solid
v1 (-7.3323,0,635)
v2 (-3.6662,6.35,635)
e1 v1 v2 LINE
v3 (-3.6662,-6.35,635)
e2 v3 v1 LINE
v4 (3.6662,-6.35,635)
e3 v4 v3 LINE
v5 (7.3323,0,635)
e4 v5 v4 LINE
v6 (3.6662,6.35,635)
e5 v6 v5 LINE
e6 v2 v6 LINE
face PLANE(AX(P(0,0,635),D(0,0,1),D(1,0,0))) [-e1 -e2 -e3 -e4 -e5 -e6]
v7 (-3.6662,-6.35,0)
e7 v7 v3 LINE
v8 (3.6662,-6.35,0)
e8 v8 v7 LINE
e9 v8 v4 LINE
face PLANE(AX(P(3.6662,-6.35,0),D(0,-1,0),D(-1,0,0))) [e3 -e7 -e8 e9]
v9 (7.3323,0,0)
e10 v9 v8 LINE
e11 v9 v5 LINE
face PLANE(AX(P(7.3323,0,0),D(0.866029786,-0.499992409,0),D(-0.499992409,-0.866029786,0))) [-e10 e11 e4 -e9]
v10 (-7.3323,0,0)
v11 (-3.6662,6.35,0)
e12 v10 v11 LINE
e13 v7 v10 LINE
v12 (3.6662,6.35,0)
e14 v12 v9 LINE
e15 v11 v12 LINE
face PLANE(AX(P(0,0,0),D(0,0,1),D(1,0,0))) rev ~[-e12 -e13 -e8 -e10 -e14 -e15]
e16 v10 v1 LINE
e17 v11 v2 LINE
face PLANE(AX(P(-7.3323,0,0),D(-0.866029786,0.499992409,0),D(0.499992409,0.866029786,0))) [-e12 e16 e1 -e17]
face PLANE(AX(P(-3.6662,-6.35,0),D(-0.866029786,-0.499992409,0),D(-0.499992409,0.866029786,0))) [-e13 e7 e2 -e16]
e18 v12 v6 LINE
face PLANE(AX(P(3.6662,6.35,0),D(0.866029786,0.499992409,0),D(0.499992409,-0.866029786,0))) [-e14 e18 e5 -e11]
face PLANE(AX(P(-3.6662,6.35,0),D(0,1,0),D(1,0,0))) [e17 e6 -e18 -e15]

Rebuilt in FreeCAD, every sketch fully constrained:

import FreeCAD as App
import Part
import Sketcher
from FreeCAD import Vector
Q = App.Units.Quantity

doc = App.newDocument("Part")
body = doc.addObject("PartDesign::Body", "Body")

# Sketch on XY plane
sketch1 = body.newObject("Sketcher::SketchObject", "Sketch")
sketch1.AttachmentSupport = (doc.getObject("XY_Plane"), [""])
sketch1.MapMode = "FlatFace"
sketch1.addGeometry(Part.LineSegment(Vector(7, 0, 0), Vector(4, 6, 0)), False)
sketch1.addGeometry(Part.LineSegment(Vector(4, 6, 0), Vector(-4, 6, 0)), False)
sketch1.addGeometry(Part.LineSegment(Vector(-4, 6, 0), Vector(-7, 0, 0)), False)
sketch1.addGeometry(Part.LineSegment(Vector(-7, 0, 0), Vector(-4, -6, 0)), False)
sketch1.addGeometry(Part.LineSegment(Vector(-4, -6, 0), Vector(4, -6, 0)), False)
sketch1.addGeometry(Part.LineSegment(Vector(4, -6, 0), Vector(7, 0, 0)), False)
sketch1.addConstraint(Sketcher.Constraint("Coincident", 0, 2, 1, 1))
sketch1.addConstraint(Sketcher.Constraint("Coincident", 1, 2, 2, 1))
sketch1.addConstraint(Sketcher.Constraint("Coincident", 2, 2, 3, 1))
sketch1.addConstraint(Sketcher.Constraint("Coincident", 3, 2, 4, 1))
sketch1.addConstraint(Sketcher.Constraint("Coincident", 4, 2, 5, 1))
sketch1.addConstraint(Sketcher.Constraint("Coincident", 5, 2, 0, 1))
sketch1.addConstraint(Sketcher.Constraint("Horizontal", 1))
sketch1.addConstraint(Sketcher.Constraint("Horizontal", 4))
sketch1.addConstraint(Sketcher.Constraint("Symmetric", 0, 2, 3, 2, -1, 1))
sketch1.addConstraint(Sketcher.Constraint("Symmetric", 2, 2, 5, 2, -1, 1))
sketch1.addConstraint(Sketcher.Constraint("PointOnObject", 2, 2, -1))
sketch1.addConstraint(Sketcher.Constraint("Parallel", 2, 5))
sketch1.addConstraint(Sketcher.Constraint("Vertical", 1, 2, 3, 2))
sketch1.addConstraint(Sketcher.Constraint("DistanceY", 3, 2, 1, 2, Q("0.5 in")))
sketch1.addConstraint(Sketcher.Constraint("Angle", 0, Q("119.9995 deg")))
sketch1.addConstraint(Sketcher.Constraint("DistanceX", 2, 2, 0, 2, Q("0.433 in")))
pad1 = body.newObject("PartDesign::Pad", "Pad")
pad1.Profile = sketch1
pad1.Length = Q("25 in")

doc.recompute()
